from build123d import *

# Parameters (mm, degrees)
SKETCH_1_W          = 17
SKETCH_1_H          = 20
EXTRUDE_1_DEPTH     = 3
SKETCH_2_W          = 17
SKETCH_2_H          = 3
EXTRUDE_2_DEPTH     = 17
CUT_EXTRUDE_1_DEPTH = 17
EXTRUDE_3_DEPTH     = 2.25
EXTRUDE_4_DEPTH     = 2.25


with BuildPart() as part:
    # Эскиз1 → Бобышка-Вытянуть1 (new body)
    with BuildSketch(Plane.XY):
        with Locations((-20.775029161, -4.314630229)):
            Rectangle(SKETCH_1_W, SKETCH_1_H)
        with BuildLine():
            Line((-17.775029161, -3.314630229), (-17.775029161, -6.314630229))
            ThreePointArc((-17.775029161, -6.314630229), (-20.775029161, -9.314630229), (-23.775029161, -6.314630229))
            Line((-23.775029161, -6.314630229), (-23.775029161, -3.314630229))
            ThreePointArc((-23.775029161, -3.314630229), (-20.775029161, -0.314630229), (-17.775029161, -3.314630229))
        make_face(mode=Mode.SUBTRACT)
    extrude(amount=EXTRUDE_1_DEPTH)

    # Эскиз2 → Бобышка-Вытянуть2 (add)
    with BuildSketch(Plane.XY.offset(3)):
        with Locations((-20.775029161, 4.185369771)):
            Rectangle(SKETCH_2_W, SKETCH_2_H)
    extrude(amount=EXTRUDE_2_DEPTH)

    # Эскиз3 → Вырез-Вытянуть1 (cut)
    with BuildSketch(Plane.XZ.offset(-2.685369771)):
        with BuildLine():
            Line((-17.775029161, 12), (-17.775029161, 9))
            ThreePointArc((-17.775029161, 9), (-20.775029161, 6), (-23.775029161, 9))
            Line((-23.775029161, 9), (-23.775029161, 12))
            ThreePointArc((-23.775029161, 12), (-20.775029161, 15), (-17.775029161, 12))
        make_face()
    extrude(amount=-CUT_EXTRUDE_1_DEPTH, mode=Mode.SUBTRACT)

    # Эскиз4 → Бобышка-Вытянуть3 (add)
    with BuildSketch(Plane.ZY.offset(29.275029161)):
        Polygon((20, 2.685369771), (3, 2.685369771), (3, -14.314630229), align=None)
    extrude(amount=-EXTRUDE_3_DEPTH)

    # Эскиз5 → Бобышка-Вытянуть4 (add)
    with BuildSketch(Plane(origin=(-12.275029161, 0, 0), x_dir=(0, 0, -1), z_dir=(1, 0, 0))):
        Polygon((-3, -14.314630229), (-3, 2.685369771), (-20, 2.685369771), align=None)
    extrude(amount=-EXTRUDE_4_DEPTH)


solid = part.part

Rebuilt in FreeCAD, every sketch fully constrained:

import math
import FreeCAD as App
import Part
import Sketcher
from FreeCAD import Vector
Q = App.Units.Quantity

doc = App.newDocument("Part")
params = doc.addObject("Spreadsheet::Sheet", "Params")
for row, (alias, value) in enumerate([
    ("sketch1_radius", "3 mm"),
    ("sketch1_width", "17 mm"),
    ("sketch1_height", "20 mm"),
    ("sketch1_height2", "3 mm"),
    ("pad1_length", "3 mm"),
    ("sketch2_width", "17 mm"),
    ("sketch2_height", "3 mm"),
    ("pad2_length", "17 mm"),
    ("sketch3_radius", "3 mm"),
    ("sketch3_height", "3 mm"),
    ("pocket1_length", "17 mm"),
    ("sketch4_width", "17 mm"),
    ("pad3_length", "2.25 mm"),
    ("sketch5_width", "17 mm"),
    ("pad4_length", "2.25 mm"),
], start=1):
    params.set(f"A{row}", alias)
    params.set(f"B{row}", "=" + value)
    params.setAlias(f"B{row}", alias)

body = doc.addObject("PartDesign::Body", "Body")

sketch1 = doc.addObject("Sketcher::SketchObject", "Sketch")
body.addObject(sketch1)
sketch1.AttachmentSupport = (doc.XY_Plane, [""])
sketch1.MapMode = "FlatFace"
sketch1.addGeometry([
    Part.LineSegment(Vector(-29.275029, 5.68537, 0), Vector(-29.275029, -14.31463, 0)),
    Part.LineSegment(Vector(-29.275029, -14.31463, 0), Vector(-12.275029, -14.31463, 0)),
    Part.LineSegment(Vector(-12.275029, -14.31463, 0), Vector(-12.275029, 5.68537, 0)),
    Part.LineSegment(Vector(-12.275029, 5.68537, 0), Vector(-29.275029, 5.68537, 0)),
    Part.ArcOfCircle(Part.Circle(Vector(-20.775029, -3.31463, 0), Vector(0, 0, 1), 3), math.radians(0), math.radians(180)),
    Part.LineSegment(Vector(-17.775029, -3.31463, 0), Vector(-17.775029, -6.31463, 0)),
    Part.ArcOfCircle(Part.Circle(Vector(-20.775029, -6.31463, 0), Vector(0, 0, 1), 3), math.radians(180), math.radians(360)),
    Part.LineSegment(Vector(-23.775029, -6.31463, 0), Vector(-23.775029, -3.31463, 0)),
], False)
sketch1.addConstraint([
    Sketcher.Constraint("Coincident", 0, 2, 1, 1),
    Sketcher.Constraint("Coincident", 1, 2, 2, 1),
    Sketcher.Constraint("Coincident", 2, 2, 3, 1),
    Sketcher.Constraint("Coincident", 3, 2, 0, 1),
    Sketcher.Constraint("Tangent", 4, 1, 5, 1),
    Sketcher.Constraint("Tangent", 5, 2, 6, 2),
    Sketcher.Constraint("Tangent", 6, 1, 7, 1),
    Sketcher.Constraint("Tangent", 7, 2, 4, 2),
    Sketcher.Constraint("Vertical", 0),
    Sketcher.Constraint("Horizontal", 1),
    Sketcher.Constraint("Vertical", 2),
    Sketcher.Constraint("Horizontal", 3),
    Sketcher.Constraint("Vertical", 5),
    Sketcher.Constraint("Vertical", 7),
    Sketcher.Constraint("Radius", 4, Q("3 mm")),
    Sketcher.Constraint("DistanceX", 1, 1, 1, 2, Q("17 mm")),
    Sketcher.Constraint("DistanceY", 0, 2, 0, 1, Q("20 mm")),
    Sketcher.Constraint("DistanceY", 5, 2, 5, 1, Q("3 mm")),
    Sketcher.Constraint("DistanceY", 0, 2, 6, 3, Q("8 mm")),
    Sketcher.Constraint("DistanceX", 0, 2, 6, 3, Q("8.5 mm")),
    Sketcher.Constraint("DistanceX", 4, 3, -1, 1, Q("20.775029 mm")),
    Sketcher.Constraint("DistanceY", 4, 3, -1, 1, Q("3.31463 mm")),
])
sketch1.setExpression("Constraints[14]", "Params.sketch1_radius")
sketch1.setExpression("Constraints[15]", "Params.sketch1_width")
sketch1.setExpression("Constraints[16]", "Params.sketch1_height")
sketch1.setExpression("Constraints[17]", "Params.sketch1_height2")
pad1 = doc.addObject("PartDesign::Pad", "Pad")
body.addObject(pad1)
pad1.Profile = sketch1
pad1.setExpression("Length", "Params.pad1_length")

sketch2 = doc.addObject("Sketcher::SketchObject", "Sketch001")
body.addObject(sketch2)
sketch2.AttachmentSupport = (doc.XY_Plane, [""])
sketch2.MapMode = "FlatFace"
sketch2.AttachmentOffset = App.Placement(Vector(0, 0, 3), App.Rotation())
sketch2.addGeometry([
    Part.LineSegment(Vector(-29.275029, 5.68537, 0), Vector(-29.275029, 2.68537, 0)),
    Part.LineSegment(Vector(-29.275029, 2.68537, 0), Vector(-12.275029, 2.68537, 0)),
    Part.LineSegment(Vector(-12.275029, 2.68537, 0), Vector(-12.275029, 5.68537, 0)),
    Part.LineSegment(Vector(-12.275029, 5.68537, 0), Vector(-29.275029, 5.68537, 0)),
], False)
sketch2.addConstraint([
    Sketcher.Constraint("Coincident", 0, 2, 1, 1),
    Sketcher.Constraint("Coincident", 1, 2, 2, 1),
    Sketcher.Constraint("Coincident", 2, 2, 3, 1),
    Sketcher.Constraint("Coincident", 3, 2, 0, 1),
    Sketcher.Constraint("Vertical", 0),
    Sketcher.Constraint("Horizontal", 1),
    Sketcher.Constraint("Vertical", 2),
    Sketcher.Constraint("Horizontal", 3),
    Sketcher.Constraint("DistanceX", 1, 1, 1, 2, Q("17 mm")),
    Sketcher.Constraint("DistanceY", 0, 2, 0, 1, Q("3 mm")),
    Sketcher.Constraint("DistanceX", 0, 2, -1, 1, Q("29.275029 mm")),
    Sketcher.Constraint("DistanceY", -1, 1, 0, 2, Q("2.68537 mm")),
])
sketch2.setExpression("Constraints[8]", "Params.sketch2_width")
sketch2.setExpression("Constraints[9]", "Params.sketch2_height")
pad2 = doc.addObject("PartDesign::Pad", "Pad001")
body.addObject(pad2)
pad2.Profile = sketch2
pad2.setExpression("Length", "Params.pad2_length")

sketch3 = doc.addObject("Sketcher::SketchObject", "Sketch002")
body.addObject(sketch3)
sketch3.AttachmentSupport = (doc.XZ_Plane, [""])
sketch3.MapMode = "FlatFace"
sketch3.AttachmentOffset = App.Placement(Vector(0, 0, -2.68537), App.Rotation())
sketch3.addGeometry([
    Part.LineSegment(Vector(-17.775029, 9, 0), Vector(-17.775029, 12, 0)),
    Part.ArcOfCircle(Part.Circle(Vector(-20.775029, 12, 0), Vector(0, 0, 1), 3), math.radians(0), math.radians(180)),
    Part.LineSegment(Vector(-23.775029, 12, 0), Vector(-23.775029, 9, 0)),
    Part.ArcOfCircle(Part.Circle(Vector(-20.775029, 9, 0), Vector(0, 0, 1), 3), math.radians(180), math.radians(360)),
], False)
sketch3.addConstraint([
    Sketcher.Constraint("Tangent", 0, 2, 1, 1),
    Sketcher.Constraint("Tangent", 1, 2, 2, 1),
    Sketcher.Constraint("Tangent", 2, 2, 3, 1),
    Sketcher.Constraint("Tangent", 3, 2, 0, 1),
    Sketcher.Constraint("Vertical", 0),
    Sketcher.Constraint("Vertical", 2),
    Sketcher.Constraint("Radius", 1, Q("3 mm")),
    Sketcher.Constraint("DistanceY", 0, 1, 0, 2, Q("3 mm")),
    Sketcher.Constraint("DistanceY", -1, 1, 1, 3, Q("12 mm")),
    Sketcher.Constraint("DistanceX", 1, 3, -1, 1, Q("20.775029 mm")),
])
sketch3.setExpression("Constraints[6]", "Params.sketch3_radius")
sketch3.setExpression("Constraints[7]", "Params.sketch3_height")
pocket1 = doc.addObject("PartDesign::Pocket", "Pocket")
body.addObject(pocket1)
pocket1.Profile = sketch3
pocket1.setExpression("Length", "Params.pocket1_length")

sketch4 = doc.addObject("Sketcher::SketchObject", "Sketch003")
body.addObject(sketch4)
sketch4.AttachmentSupport = (doc.YZ_Plane, [""])
sketch4.MapMode = "FlatFace"
sketch4.AttachmentOffset = App.Placement(Vector(0, 0, -29.275029), App.Rotation())
sketch4.addGeometry([
    Part.LineSegment(Vector(2.68537, 20, 0), Vector(2.68537, 3, 0)),
    Part.LineSegment(Vector(2.68537, 3, 0), Vector(-14.31463, 3, 0)),
    Part.LineSegment(Vector(-14.31463, 3, 0), Vector(2.68537, 20, 0)),
], False)
sketch4.addConstraint([
    Sketcher.Constraint("Coincident", 0, 2, 1, 1),
    Sketcher.Constraint("Coincident", 1, 2, 2, 1),
    Sketcher.Constraint("Coincident", 2, 2, 0, 1),
    Sketcher.Constraint("Vertical", 0),
    Sketcher.Constraint("Horizontal", 1),
    Sketcher.Constraint("Equal", 1, 0),
    Sketcher.Constraint("DistanceX", 1, 2, 1, 1, Q("17 mm")),
    Sketcher.Constraint("DistanceY", -1, 1, 0, 2, Q("3 mm")),
    Sketcher.Constraint("DistanceX", -1, 1, 0, 2, Q("2.68537 mm")),
])
sketch4.setExpression("Constraints[6]", "Params.sketch4_width")
pad3 = doc.addObject("PartDesign::Pad", "Pad002")
body.addObject(pad3)
pad3.Profile = sketch4
pad3.setExpression("Length", "Params.pad3_length")

sketch5 = doc.addObject("Sketcher::SketchObject", "Sketch004")
body.addObject(sketch5)
sketch5.AttachmentSupport = (doc.YZ_Plane, [""])
sketch5.MapMode = "FlatFace"
sketch5.AttachmentOffset = App.Placement(Vector(0, 0, -12.275029), App.Rotation())
sketch5.addGeometry([
    Part.LineSegment(Vector(-14.31463, 3, 0), Vector(2.68537, 3, 0)),
    Part.LineSegment(Vector(2.68537, 3, 0), Vector(2.68537, 20, 0)),
    Part.LineSegment(Vector(2.68537, 20, 0), Vector(-14.31463, 3, 0)),
], False)
sketch5.addConstraint([
    Sketcher.Constraint("Coincident", 0, 2, 1, 1),
    Sketcher.Constraint("Coincident", 1, 2, 2, 1),
    Sketcher.Constraint("Coincident", 2, 2, 0, 1),
    Sketcher.Constraint("Horizontal", 0),
    Sketcher.Constraint("Vertical", 1),
    Sketcher.Constraint("Equal", 0, 1),
    Sketcher.Constraint("DistanceX", 0, 1, 0, 2, Q("17 mm")),
    Sketcher.Constraint("DistanceY", -1, 1, 0, 2, Q("3 mm")),
    Sketcher.Constraint("DistanceX", -1, 1, 0, 2, Q("2.68537 mm")),
])
sketch5.setExpression("Constraints[6]", "Params.sketch5_width")
pad4 = doc.addObject("PartDesign::Pad", "Pad003")
body.addObject(pad4)
pad4.Profile = sketch5
pad4.setExpression("Length", "Params.pad4_length")
pad4.Reversed = True

doc.recompute()
